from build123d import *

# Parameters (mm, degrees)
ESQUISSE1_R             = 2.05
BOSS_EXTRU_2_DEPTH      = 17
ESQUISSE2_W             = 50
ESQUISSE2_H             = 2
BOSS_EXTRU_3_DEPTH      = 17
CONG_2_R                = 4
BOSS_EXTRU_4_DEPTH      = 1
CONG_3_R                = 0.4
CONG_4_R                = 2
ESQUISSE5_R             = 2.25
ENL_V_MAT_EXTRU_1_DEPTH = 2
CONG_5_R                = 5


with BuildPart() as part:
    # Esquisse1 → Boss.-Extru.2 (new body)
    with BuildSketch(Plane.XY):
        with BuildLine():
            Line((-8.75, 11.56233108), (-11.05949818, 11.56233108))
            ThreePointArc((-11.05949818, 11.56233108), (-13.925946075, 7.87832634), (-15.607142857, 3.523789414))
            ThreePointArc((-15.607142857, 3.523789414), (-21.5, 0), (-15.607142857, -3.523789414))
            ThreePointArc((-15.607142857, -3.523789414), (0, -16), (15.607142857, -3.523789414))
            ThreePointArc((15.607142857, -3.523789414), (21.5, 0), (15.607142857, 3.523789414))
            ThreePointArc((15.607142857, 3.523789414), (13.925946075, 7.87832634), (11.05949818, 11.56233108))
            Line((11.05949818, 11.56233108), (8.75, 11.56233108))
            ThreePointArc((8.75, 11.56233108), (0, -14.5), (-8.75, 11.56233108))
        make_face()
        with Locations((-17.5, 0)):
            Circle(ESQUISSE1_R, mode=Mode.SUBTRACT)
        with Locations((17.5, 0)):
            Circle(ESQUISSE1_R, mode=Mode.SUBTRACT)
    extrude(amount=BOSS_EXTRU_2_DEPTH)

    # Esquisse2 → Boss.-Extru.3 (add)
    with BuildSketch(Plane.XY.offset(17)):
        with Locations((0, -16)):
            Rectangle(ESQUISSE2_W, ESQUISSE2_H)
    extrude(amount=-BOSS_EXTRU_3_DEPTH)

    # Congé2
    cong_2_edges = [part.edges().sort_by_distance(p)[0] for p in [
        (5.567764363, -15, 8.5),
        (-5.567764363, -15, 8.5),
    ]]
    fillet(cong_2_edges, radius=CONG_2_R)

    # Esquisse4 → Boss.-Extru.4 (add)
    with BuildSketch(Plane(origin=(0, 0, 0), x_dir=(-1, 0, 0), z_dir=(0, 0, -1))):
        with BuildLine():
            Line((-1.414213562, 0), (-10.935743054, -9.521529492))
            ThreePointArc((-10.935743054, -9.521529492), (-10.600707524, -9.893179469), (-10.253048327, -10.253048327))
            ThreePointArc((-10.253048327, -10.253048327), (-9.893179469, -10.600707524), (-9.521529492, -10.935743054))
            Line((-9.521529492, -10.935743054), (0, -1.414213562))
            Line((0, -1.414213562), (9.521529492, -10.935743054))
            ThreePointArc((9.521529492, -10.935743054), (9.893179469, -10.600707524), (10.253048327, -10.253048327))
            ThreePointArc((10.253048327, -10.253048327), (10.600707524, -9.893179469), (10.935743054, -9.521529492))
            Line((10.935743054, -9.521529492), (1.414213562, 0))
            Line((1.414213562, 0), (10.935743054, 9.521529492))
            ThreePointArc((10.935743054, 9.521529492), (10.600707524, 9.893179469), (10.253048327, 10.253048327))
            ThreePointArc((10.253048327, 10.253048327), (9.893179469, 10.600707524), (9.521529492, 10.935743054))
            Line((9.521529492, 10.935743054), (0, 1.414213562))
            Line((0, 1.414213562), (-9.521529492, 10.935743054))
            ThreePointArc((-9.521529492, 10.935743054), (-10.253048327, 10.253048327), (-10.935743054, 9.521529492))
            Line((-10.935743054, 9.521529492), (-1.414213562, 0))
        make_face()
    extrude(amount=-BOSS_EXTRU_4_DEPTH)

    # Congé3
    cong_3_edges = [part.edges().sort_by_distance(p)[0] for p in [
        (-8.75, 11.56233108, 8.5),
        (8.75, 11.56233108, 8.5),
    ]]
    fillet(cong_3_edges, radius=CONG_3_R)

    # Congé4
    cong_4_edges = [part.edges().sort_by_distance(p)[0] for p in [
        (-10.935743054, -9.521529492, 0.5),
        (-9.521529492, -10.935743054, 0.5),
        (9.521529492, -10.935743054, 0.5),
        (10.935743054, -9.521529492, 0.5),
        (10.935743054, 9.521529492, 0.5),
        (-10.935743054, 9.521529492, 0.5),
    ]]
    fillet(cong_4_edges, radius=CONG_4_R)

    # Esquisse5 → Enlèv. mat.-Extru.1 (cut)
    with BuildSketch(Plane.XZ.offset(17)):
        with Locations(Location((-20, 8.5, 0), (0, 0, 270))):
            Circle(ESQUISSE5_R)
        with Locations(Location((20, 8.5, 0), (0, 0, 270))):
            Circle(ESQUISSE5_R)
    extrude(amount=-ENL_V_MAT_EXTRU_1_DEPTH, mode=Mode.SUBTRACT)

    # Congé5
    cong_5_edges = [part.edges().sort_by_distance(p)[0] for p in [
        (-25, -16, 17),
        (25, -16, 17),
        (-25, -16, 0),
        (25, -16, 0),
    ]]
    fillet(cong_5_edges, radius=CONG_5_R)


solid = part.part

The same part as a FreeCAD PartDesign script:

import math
import FreeCAD as App
import Part
import Sketcher

V = App.Vector
Q = App.Units.Quantity


def edges_at(feature, points):
    """Names of the edges that pass closest to the given points."""
    edges = feature.Shape.Edges
    near = lambda p: min(range(len(edges)), key=lambda i: edges[i].distToShape(Part.Vertex(*p))[0])
    return sorted({f"Edge{near(p) + 1}" for p in points})

doc = App.newDocument("Part")
params = doc.addObject("Spreadsheet::Sheet", "Params")
for row, (alias, value) in enumerate([
    ("sketch1_radius", "16 mm"),
    ("sketch1_radius2", "4 mm"),
    ("sketch1_diameter", "4.1 mm"),
    ("sketch1_radius3", "14.5 mm"),
    ("pad1_length", "17 mm"),
    ("sketch2_width", "50 mm"),
    ("sketch2_height", "2 mm"),
    ("pad2_length", "17 mm"),
    ("fillet_radius", "4 mm"),
    ("sketch3_radius", "14.499999 mm"),
    ("pad3_length", "1 mm"),
    ("fillet2_radius", "0.4 mm"),
    ("fillet3_radius", "2 mm"),
    ("sketch4_diameter", "4.5 mm"),
    ("pocket1_length", "2 mm"),
    ("fillet4_radius", "5 mm"),
], start=1):
    params.set(f"A{row}", alias)
    params.set(f"B{row}", "=" + value)
    params.setAlias(f"B{row}", alias)

body = doc.addObject("PartDesign::Body", "Body")

# Sketch on XY plane
sketch1 = body.newObject("Sketcher::SketchObject", "Sketch")
sketch1.AttachmentSupport = (doc.getObject("XY_Plane"), [""])
sketch1.MapMode = "FlatFace"
sketch1.addGeometry([
    Part.LineSegment(V(-8.75, 11.562331, 0), V(-11.059498, 11.562331, 0)),  # 0
    Part.ArcOfCircle(Part.Circle(V(0, 0, 0), V(0, 0, 1), 16), math.radians(133.726652), math.radians(167.277056)),  # 1
    Part.ArcOfCircle(Part.Circle(V(-17.5, 0, 0), V(0, 0, 1), 4), math.radians(61.756854), math.radians(298.243146)),  # 2
    Part.ArcOfCircle(Part.Circle(V(0, 0, 0), V(0, 0, 1), 16), math.radians(-167.277056), math.radians(-12.722944)),  # 3
    Part.ArcOfCircle(Part.Circle(V(17.5, 0, 0), V(0, 0, 1), 4), math.radians(-118.243146), math.radians(118.243146)),  # 4
    Part.ArcOfCircle(Part.Circle(V(0, 0, 0), V(0, 0, 1), 16), math.radians(12.722944), math.radians(46.273348)),  # 5
    Part.LineSegment(V(11.059498, 11.562331, 0), V(8.75, 11.562331, 0)),  # 6
    Part.ArcOfCircle(Part.Circle(V(0, 0, 0), V(0, 0, 1), 14.5), math.radians(127.117263), math.radians(412.882737)),  # 7
    Part.Circle(V(-17.5, 0, 0), V(0, 0, 1), 2.05),  # 8
    Part.Circle(V(17.5, 0, 0), V(0, 0, 1), 2.05),  # 9
], False)
sketch1.addConstraint([
    Sketcher.Constraint("Coincident", 0, 2, 1, 1),
    Sketcher.Constraint("Coincident", 1, 2, 2, 1),
    Sketcher.Constraint("Coincident", 2, 2, 3, 1),
    Sketcher.Constraint("Coincident", 3, 2, 4, 1),
    Sketcher.Constraint("Coincident", 4, 2, 5, 1),
    Sketcher.Constraint("Coincident", 5, 2, 6, 1),
    Sketcher.Constraint("Coincident", 6, 2, 7, 2),
    Sketcher.Constraint("Coincident", 7, 1, 0, 1),
    Sketcher.Constraint("Horizontal", 0),
    Sketcher.Constraint("Horizontal", 6),
    Sketcher.Constraint("Coincident", 1, 3, -1, 1),
    Sketcher.Constraint("Coincident", 3, 3, -1, 1),
    Sketcher.Constraint("Coincident", 5, 3, -1, 1),
    Sketcher.Constraint("Coincident", 7, 3, -1, 1),
    Sketcher.Constraint("Coincident", 8, 3, 2, 3),
    Sketcher.Constraint("Coincident", 9, 3, 4, 3),
    Sketcher.Constraint("Equal", 1, 3),
    Sketcher.Constraint("Equal", 2, 4),
    Sketcher.Constraint("Equal", 3, 5),
    Sketcher.Constraint("Equal", 8, 9),
    Sketcher.Constraint("Symmetric", 2, 3, 4, 3, -1, 1),
    Sketcher.Constraint("PointOnObject", 2, 3, -1),
    Sketcher.Constraint("Horizontal", 0, 2, 5, 2),
    Sketcher.Constraint("Radius", 1, Q("16 mm")),
    Sketcher.Constraint("Radius", 2, Q("4 mm")),
    Sketcher.Constraint("Diameter", 8, Q("4.1 mm")),
    Sketcher.Constraint("Radius", 7, Q("14.5 mm")),
    Sketcher.Constraint("DistanceX", 2, 3, 4, 3, Q("35 mm")),
    Sketcher.Constraint("DistanceX", -1, 1, 6, 2, Q("8.75 mm")),
])
sketch1.setExpression("Constraints[23]", "Params.sketch1_radius")
sketch1.setExpression("Constraints[24]", "Params.sketch1_radius2")
sketch1.setExpression("Constraints[25]", "Params.sketch1_diameter")
sketch1.setExpression("Constraints[26]", "Params.sketch1_radius3")
pad1 = body.newObject("PartDesign::Pad", "Pad")
pad1.Profile = sketch1
pad1.setExpression("Length", "Params.pad1_length")

# Sketch on XY plane
sketch2 = body.newObject("Sketcher::SketchObject", "Sketch001")
sketch2.AttachmentSupport = (doc.getObject("XY_Plane"), [""])
sketch2.MapMode = "FlatFace"
sketch2.AttachmentOffset = App.Placement(V(0, 0, 17), App.Rotation())
sketch2.addGeometry([
    Part.LineSegment(V(-25, -15, 0), V(-25, -17, 0)),
    Part.LineSegment(V(-25, -17, 0), V(25, -17, 0)),
    Part.LineSegment(V(25, -17, 0), V(25, -15, 0)),
    Part.LineSegment(V(25, -15, 0), V(-25, -15, 0)),
], False)
sketch2.addConstraint([
    Sketcher.Constraint("Coincident", 0, 2, 1, 1),
    Sketcher.Constraint("Coincident", 1, 2, 2, 1),
    Sketcher.Constraint("Coincident", 2, 2, 3, 1),
    Sketcher.Constraint("Coincident", 3, 2, 0, 1),
    Sketcher.Constraint("Vertical", 0),
    Sketcher.Constraint("Horizontal", 1),
    Sketcher.Constraint("Vertical", 2),
    Sketcher.Constraint("Horizontal", 3),
    Sketcher.Constraint("DistanceX", 1, 1, 1, 2, Q("50 mm")),
    Sketcher.Constraint("DistanceY", 0, 2, 0, 1, Q("2 mm")),
    Sketcher.Constraint("DistanceX", 0, 2, -1, 1, Q("25 mm")),
    Sketcher.Constraint("DistanceY", 0, 2, -1, 1, Q("17 mm")),
])
sketch2.setExpression("Constraints[8]", "Params.sketch2_width")
sketch2.setExpression("Constraints[9]", "Params.sketch2_height")
pad2 = body.newObject("PartDesign::Pad", "Pad001")
pad2.Profile = sketch2
pad2.setExpression("Length", "Params.pad2_length")
pad2.Reversed = True
doc.recompute()

fillet = body.newObject("PartDesign::Fillet", "Fillet")
fillet.Base = (pad2, edges_at(pad2, [(5.568, -15, 8.5), (-5.568, -15, 8.5)]))
fillet.setExpression("Radius", "Params.fillet_radius")

# Sketch on XY plane
sketch3 = body.newObject("Sketcher::SketchObject", "Sketch002")
sketch3.AttachmentSupport = (doc.getObject("XY_Plane"), [""])
sketch3.MapMode = "FlatFace"
sketch3.addGeometry([
    Part.LineSegment(V(1.414214, 0, 0), V(10.935743, -9.521529, 0)),  # 0
    Part.ArcOfCircle(Part.Circle(V(0.000001, -0.000001, 0), V(0, 0, 1), 14.499999), math.radians(-45), math.radians(-41.045428)),  # 1
    Part.ArcOfCircle(Part.Circle(V(0.000001, -0.000001, 0), V(0, 0, 1), 14.499999), math.radians(-48.954572), math.radians(-45)),  # 2
    Part.LineSegment(V(9.521529, -10.935743, 0), V(0, -1.414214, 0)),  # 3
    Part.LineSegment(V(0, -1.414214, 0), V(-9.521529, -10.935743, 0)),  # 4
    Part.ArcOfCircle(Part.Circle(V(-0.000001, -0.000001, 0), V(0, 0, 1), 14.499999), math.radians(-135), math.radians(-131.045428)),  # 5
    Part.ArcOfCircle(Part.Circle(V(-0.000001, -0.000001, 0), V(0, 0, 1), 14.499999), math.radians(-138.954572), math.radians(-135)),  # 6
    Part.LineSegment(V(-10.935743, -9.521529, 0), V(-1.414214, 0, 0)),  # 7
    Part.LineSegment(V(-1.414214, 0, 0), V(-10.935743, 9.521529, 0)),  # 8
    Part.ArcOfCircle(Part.Circle(V(-0.000001, 0.000001, 0), V(0, 0, 1), 14.499999), math.radians(135), math.radians(138.954572)),  # 9
    Part.ArcOfCircle(Part.Circle(V(-0.000001, 0.000001, 0), V(0, 0, 1), 14.499999), math.radians(131.045428), math.radians(135)),  # 10
    Part.LineSegment(V(-9.521529, 10.935743, 0), V(0, 1.414214, 0)),  # 11
    Part.LineSegment(V(0, 1.414214, 0), V(9.521529, 10.935743, 0)),  # 12
    Part.ArcOfCircle(Part.Circle(V(0, 0, 0), V(0, 0, 1), 14.5), math.radians(41.045428), math.radians(48.954572)),  # 13
    Part.LineSegment(V(10.935743, 9.521529, 0), V(1.414214, 0, 0)),  # 14
], False)
sketch3.addConstraint([
    Sketcher.Constraint("Coincident", 0, 2, 1, 2),
    Sketcher.Constraint("Tangent", 1, 1, 2, 2),
    Sketcher.Constraint("Coincident", 2, 1, 3, 1),
    Sketcher.Constraint("Coincident", 3, 2, 4, 1),
    Sketcher.Constraint("Coincident", 4, 2, 5, 2),
    Sketcher.Constraint("Tangent", 5, 1, 6, 2),
    Sketcher.Constraint("Coincident", 6, 1, 7, 1),
    Sketcher.Constraint("Coincident", 7, 2, 8, 1),
    Sketcher.Constraint("Coincident", 8, 2, 9, 2),
    Sketcher.Constraint("Tangent", 9, 1, 10, 2),
    Sketcher.Constraint("Coincident", 10, 1, 11, 1),
    Sketcher.Constraint("Coincident", 11, 2, 12, 1),
    Sketcher.Constraint("Coincident", 12, 2, 13, 2),
    Sketcher.Constraint("Coincident", 13, 1, 14, 1),
    Sketcher.Constraint("Coincident", 14, 2, 0, 1),
    Sketcher.Constraint("Coincident", 1, 3, -1, 1),
    Sketcher.Constraint("Coincident", 5, 3, -1, 1),
    Sketcher.Constraint("Coincident", 9, 3, -1, 1),
    Sketcher.Constraint("Coincident", 13, 3, -1, 1),
    Sketcher.Constraint("Equal", 1, 2),
    Sketcher.Constraint("Equal", 2, 5),
    Sketcher.Constraint("Equal", 5, 6),
    Sketcher.Constraint("Equal", 6, 9),
    Sketcher.Constraint("Equal", 9, 10),
    Sketcher.Constraint("Equal", 10, 13),
    Sketcher.Constraint("Symmetric", 3, 2, 11, 2, -1, 1),
    Sketcher.Constraint("Symmetric", 7, 2, 14, 2, -1, 1),
    Sketcher.Constraint("PointOnObject", 3, 2, -2),
    Sketcher.Constraint("PointOnObject", 7, 2, -1),
    Sketcher.Constraint("Parallel", 0, 3),
    Sketcher.Constraint("Perpendicular", 3, 4),
    Sketcher.Constraint("Parallel", 4, 7),
    Sketcher.Constraint("Perpendicular", 7, 8),
    Sketcher.Constraint("Parallel", 8, 11),
    Sketcher.Constraint("Perpendicular", 11, 12),
    Sketcher.Constraint("Parallel", 12, 14),
    Sketcher.Constraint("Horizontal", 2, 1, 4, 2),
    Sketcher.Constraint("Horizontal", 1, 1, 5, 1),
    Sketcher.Constraint("Vertical", 5, 1, 9, 1),
    Sketcher.Constraint("Equal", 0, 3),
    Sketcher.Constraint("Radius", 1, Q("14.499999 mm")),
    Sketcher.Constraint("DistanceY", 0, 2, -1, 1, Q("9.521529 mm")),
    Sketcher.Constraint("DistanceX", -1, 1, 1, 1, Q("10.253048 mm")),
])
sketch3.setExpression("Constraints[40]", "Params.sketch3_radius")
pad3 = body.newObject("PartDesign::Pad", "Pad002")
pad3.Profile = sketch3
pad3.setExpression("Length", "Params.pad3_length")
doc.recompute()

fillet2 = body.newObject("PartDesign::Fillet", "Fillet001")
fillet2.Base = (pad3, edges_at(pad3, [(-8.75, 11.562, 8.5), (8.75, 11.562, 8.5)]))
fillet2.setExpression("Radius", "Params.fillet2_radius")
doc.recompute()

fillet3 = body.newObject("PartDesign::Fillet", "Fillet002")
fillet3.Base = (fillet2, edges_at(fillet2, [
    (-10.936, -9.522, 0.5),
    (-9.522, -10.936, 0.5),
    (9.522, -10.936, 0.5),
    (10.936, -9.522, 0.5),
    (10.936, 9.522, 0.5),
    (-10.936, 9.522, 0.5),
]))
fillet3.setExpression("Radius", "Params.fillet3_radius")

# Sketch on XZ plane
sketch4 = body.newObject("Sketcher::SketchObject", "Sketch003")
sketch4.AttachmentSupport = (doc.getObject("XZ_Plane"), [""])
sketch4.MapMode = "FlatFace"
sketch4.AttachmentOffset = App.Placement(V(0, 0, 17), App.Rotation())
sketch4.addGeometry([
    Part.Circle(V(-20, 8.5, 0), V(0, 0, 1), 2.25),
    Part.Circle(V(20, 8.5, 0), V(0, 0, 1), 2.25),
], False)
sketch4.addConstraint([
    Sketcher.Constraint("Equal", 0, 1),
    Sketcher.Constraint("Symmetric", 0, 3, 1, 3, -2),
    Sketcher.Constraint("Diameter", 0, Q("4.5 mm")),
    Sketcher.Constraint("DistanceX", 0, 3, -1, 1, Q("20 mm")),
    Sketcher.Constraint("DistanceY", -1, 1, 0, 3, Q("8.5 mm")),
])
sketch4.setExpression("Constraints[2]", "Params.sketch4_diameter")
pocket1 = body.newObject("PartDesign::Pocket", "Pocket")
pocket1.Profile = sketch4
pocket1.setExpression("Length", "Params.pocket1_length")
doc.recompute()

fillet4 = body.newObject("PartDesign::Fillet", "Fillet003")
fillet4.Base = (pocket1, edges_at(pocket1, [
    (-25, -16, 17),
    (25, -16, 17),
    (-25, -16, 0),
    (25, -16, 0),
]))
fillet4.setExpression("Radius", "Params.fillet4_radius")

doc.recompute()
